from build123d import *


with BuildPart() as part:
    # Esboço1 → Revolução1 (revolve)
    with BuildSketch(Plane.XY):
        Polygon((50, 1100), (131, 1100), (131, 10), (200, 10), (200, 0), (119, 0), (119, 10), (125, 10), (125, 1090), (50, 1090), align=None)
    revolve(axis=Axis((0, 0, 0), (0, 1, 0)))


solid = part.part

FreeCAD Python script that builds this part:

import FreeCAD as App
import Part
import Sketcher

V = App.Vector
Q = App.Units.Quantity

doc = App.newDocument("Part")
body = doc.addObject("PartDesign::Body", "Body")

# Sketch on XY plane
sketch1 = body.newObject("Sketcher::SketchObject", "Sketch")
sketch1.AttachmentSupport = (doc.getObject("XY_Plane"), [""])
sketch1.MapMode = "FlatFace"
sketch1.addGeometry([
    Part.LineSegment(V(131, 1100, 0), V(50, 1100, 0)),  # 0
    Part.LineSegment(V(50, 1100, 0), V(50, 1090, 0)),  # 1
    Part.LineSegment(V(50, 1090, 0), V(125, 1090, 0)),  # 2
    Part.LineSegment(V(125, 1090, 0), V(125, 10, 0)),  # 3
    Part.LineSegment(V(125, 10, 0), V(119, 10, 0)),  # 4
    Part.LineSegment(V(119, 10, 0), V(119, 0, 0)),  # 5
    Part.LineSegment(V(119, 0, 0), V(200, 0, 0)),  # 6
    Part.LineSegment(V(200, 0, 0), V(200, 10, 0)),  # 7
    Part.LineSegment(V(200, 10, 0), V(131, 10, 0)),  # 8
    Part.LineSegment(V(131, 10, 0), V(131, 1100, 0)),  # 9
], False)
sketch1.addConstraint([
    Sketcher.Constraint("Coincident", 0, 2, 1, 1),
    Sketcher.Constraint("Coincident", 1, 2, 2, 1),
    Sketcher.Constraint("Coincident", 2, 2, 3, 1),
    Sketcher.Constraint("Coincident", 3, 2, 4, 1),
    Sketcher.Constraint("Coincident", 4, 2, 5, 1),
    Sketcher.Constraint("Coincident", 5, 2, 6, 1),
    Sketcher.Constraint("Coincident", 6, 2, 7, 1),
    Sketcher.Constraint("Coincident", 7, 2, 8, 1),
    Sketcher.Constraint("Coincident", 8, 2, 9, 1),
    Sketcher.Constraint("Coincident", 9, 2, 0, 1),
    Sketcher.Constraint("Horizontal", 0),
    Sketcher.Constraint("Vertical", 1),
    Sketcher.Constraint("Horizontal", 2),
    Sketcher.Constraint("Vertical", 3),
    Sketcher.Constraint("Horizontal", 4),
    Sketcher.Constraint("Vertical", 5),
    Sketcher.Constraint("Horizontal", 6),
    Sketcher.Constraint("Vertical", 7),
    Sketcher.Constraint("Horizontal", 8),
    Sketcher.Constraint("Vertical", 9),
    Sketcher.Constraint("PointOnObject", 5, 2, -1),
    Sketcher.Constraint("Horizontal", 4, 2, 7, 2),
    Sketcher.Constraint("Equal", 0, 6),
    Sketcher.Constraint("Equal", 1, 5),
    Sketcher.Constraint("DistanceX", 0, 2, 0, 1, Q("81 mm")),
    Sketcher.Constraint("DistanceX", 2, 1, 2, 2, Q("75 mm")),
    Sketcher.Constraint("DistanceX", 4, 2, 4, 1, Q("6 mm")),
    Sketcher.Constraint("DistanceY", 1, 2, 1, 1, Q("10 mm")),
    Sketcher.Constraint("DistanceY", 3, 2, 3, 1, Q("1080 mm")),
    Sketcher.Constraint("DistanceX", -1, 1, 0, 2, Q("50 mm")),
])
revolution = body.newObject("PartDesign::Revolution", "Revolution")
revolution.Profile = sketch1
revolution.ReferenceAxis = (sketch1, ["V_Axis"])
revolution.Angle = 360

doc.recompute()
